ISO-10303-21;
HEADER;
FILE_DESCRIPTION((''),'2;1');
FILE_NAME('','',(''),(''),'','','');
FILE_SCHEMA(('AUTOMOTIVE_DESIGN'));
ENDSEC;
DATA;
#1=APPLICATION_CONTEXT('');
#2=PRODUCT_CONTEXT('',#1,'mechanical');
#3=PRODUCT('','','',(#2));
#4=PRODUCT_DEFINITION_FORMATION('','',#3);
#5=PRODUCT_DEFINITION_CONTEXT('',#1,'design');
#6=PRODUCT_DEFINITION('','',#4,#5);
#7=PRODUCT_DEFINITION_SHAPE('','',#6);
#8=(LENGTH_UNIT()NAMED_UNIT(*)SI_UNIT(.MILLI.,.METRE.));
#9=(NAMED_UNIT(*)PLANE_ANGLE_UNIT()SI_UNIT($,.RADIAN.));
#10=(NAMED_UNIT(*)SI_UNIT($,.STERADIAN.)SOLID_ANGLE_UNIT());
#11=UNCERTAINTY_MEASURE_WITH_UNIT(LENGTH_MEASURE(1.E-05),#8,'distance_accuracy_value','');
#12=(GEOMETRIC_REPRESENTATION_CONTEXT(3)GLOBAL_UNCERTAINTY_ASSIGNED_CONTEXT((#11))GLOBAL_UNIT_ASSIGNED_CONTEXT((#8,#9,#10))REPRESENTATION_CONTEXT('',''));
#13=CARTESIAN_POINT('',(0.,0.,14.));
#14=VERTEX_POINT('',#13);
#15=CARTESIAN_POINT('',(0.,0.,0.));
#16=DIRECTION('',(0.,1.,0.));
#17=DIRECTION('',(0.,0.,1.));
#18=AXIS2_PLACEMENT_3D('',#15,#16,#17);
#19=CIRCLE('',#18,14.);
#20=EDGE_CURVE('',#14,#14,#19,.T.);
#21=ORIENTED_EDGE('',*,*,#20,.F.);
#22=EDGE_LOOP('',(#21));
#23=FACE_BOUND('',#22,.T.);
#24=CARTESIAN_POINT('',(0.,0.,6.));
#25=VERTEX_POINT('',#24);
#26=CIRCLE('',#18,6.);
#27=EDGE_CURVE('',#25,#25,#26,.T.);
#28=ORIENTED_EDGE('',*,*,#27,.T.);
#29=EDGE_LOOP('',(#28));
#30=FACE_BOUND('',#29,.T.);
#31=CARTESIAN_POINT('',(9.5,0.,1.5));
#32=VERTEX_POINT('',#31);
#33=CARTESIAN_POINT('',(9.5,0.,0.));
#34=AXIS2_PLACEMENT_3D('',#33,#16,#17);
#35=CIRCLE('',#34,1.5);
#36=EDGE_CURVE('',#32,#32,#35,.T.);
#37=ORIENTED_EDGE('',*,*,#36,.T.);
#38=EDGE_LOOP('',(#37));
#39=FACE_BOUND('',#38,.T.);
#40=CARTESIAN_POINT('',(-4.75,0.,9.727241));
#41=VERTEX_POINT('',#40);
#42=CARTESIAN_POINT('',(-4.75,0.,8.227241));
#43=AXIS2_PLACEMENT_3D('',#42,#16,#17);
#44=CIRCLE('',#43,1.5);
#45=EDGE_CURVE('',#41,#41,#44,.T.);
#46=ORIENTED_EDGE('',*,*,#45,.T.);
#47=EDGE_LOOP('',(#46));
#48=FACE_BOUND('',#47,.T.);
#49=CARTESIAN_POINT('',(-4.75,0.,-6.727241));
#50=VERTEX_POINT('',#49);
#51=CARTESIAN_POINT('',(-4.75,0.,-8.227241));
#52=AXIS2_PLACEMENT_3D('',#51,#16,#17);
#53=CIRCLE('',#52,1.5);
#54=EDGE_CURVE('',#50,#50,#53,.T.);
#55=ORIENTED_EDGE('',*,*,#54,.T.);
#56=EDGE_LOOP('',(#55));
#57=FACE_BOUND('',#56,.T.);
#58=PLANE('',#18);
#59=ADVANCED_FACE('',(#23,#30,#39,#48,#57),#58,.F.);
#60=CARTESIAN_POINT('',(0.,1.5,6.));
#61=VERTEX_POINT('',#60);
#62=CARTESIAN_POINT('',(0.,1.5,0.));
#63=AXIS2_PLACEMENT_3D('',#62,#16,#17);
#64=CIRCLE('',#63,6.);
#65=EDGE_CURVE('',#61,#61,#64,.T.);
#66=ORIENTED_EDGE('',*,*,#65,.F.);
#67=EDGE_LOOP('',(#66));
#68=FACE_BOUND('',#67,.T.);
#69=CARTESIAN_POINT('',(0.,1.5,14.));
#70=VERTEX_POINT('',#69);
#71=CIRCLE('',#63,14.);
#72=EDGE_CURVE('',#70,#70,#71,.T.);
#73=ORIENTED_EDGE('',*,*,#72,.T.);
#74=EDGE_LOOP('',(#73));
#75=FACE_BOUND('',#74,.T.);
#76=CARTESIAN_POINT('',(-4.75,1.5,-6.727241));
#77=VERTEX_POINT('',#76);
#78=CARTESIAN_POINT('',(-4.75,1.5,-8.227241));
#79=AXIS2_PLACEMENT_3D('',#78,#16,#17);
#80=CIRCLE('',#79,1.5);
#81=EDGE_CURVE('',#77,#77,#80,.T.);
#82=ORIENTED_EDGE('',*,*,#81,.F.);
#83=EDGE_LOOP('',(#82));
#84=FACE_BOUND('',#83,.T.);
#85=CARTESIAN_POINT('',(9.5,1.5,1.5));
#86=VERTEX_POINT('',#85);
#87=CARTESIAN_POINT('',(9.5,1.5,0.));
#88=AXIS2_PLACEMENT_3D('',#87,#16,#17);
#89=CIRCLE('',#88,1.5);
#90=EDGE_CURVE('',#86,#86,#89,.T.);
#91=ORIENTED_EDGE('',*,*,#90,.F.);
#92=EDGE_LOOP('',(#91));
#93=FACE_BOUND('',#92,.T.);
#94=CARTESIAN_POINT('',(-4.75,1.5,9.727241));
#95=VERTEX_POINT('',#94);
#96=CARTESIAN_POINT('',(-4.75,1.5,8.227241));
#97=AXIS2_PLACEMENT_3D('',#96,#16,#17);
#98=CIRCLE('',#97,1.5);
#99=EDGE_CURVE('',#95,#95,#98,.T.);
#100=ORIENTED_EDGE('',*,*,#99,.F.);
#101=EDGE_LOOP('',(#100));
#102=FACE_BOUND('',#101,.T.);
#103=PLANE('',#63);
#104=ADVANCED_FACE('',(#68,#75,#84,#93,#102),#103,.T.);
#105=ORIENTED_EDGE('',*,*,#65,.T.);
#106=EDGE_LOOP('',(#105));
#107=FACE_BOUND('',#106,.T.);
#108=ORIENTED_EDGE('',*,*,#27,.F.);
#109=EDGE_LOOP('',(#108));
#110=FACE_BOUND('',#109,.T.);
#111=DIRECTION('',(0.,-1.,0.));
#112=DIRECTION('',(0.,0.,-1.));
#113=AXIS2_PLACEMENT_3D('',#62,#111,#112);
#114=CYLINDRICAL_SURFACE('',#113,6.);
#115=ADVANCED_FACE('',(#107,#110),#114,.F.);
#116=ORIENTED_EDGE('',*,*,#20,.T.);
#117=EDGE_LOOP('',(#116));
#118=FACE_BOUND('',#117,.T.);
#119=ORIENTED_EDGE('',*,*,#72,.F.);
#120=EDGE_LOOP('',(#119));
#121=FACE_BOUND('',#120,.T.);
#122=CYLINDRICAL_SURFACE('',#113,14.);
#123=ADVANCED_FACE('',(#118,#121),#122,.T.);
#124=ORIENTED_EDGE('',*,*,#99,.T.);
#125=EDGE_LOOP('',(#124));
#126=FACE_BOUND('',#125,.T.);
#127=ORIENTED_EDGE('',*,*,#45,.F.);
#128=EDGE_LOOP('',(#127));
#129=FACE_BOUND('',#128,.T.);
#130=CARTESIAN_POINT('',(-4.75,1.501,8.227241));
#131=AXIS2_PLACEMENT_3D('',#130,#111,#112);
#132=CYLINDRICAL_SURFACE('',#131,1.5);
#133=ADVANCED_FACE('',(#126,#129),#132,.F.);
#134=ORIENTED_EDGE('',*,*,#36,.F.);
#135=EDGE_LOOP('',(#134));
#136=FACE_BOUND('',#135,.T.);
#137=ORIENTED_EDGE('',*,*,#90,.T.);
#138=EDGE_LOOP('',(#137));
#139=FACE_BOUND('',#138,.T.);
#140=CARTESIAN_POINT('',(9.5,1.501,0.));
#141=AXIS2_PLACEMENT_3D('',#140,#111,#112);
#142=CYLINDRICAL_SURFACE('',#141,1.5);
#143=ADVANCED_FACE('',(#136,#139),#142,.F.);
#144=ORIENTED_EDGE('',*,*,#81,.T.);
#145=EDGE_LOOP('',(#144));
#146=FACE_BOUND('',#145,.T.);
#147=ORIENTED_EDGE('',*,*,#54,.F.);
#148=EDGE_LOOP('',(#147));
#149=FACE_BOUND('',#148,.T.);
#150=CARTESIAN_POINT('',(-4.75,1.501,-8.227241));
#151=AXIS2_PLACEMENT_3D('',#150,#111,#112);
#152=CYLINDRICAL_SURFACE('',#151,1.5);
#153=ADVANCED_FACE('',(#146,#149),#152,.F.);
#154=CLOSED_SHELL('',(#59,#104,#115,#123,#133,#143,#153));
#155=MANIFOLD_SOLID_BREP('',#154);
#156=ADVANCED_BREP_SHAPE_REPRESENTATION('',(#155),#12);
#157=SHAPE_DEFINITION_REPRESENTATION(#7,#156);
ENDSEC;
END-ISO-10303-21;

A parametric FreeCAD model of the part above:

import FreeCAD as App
import Part
import Sketcher
Q = App.Units.Quantity

doc = App.newDocument("Part")
body = doc.addObject("PartDesign::Body", "Body")

sketch1 = body.newObject("Sketcher::SketchObject", "Sketch")
sketch1.AttachmentSupport = (doc.getObject("XZ_Plane"), [""])
sketch1.MapMode = "FlatFace"
sketch1.addGeometry(Part.Circle(App.Vector(0, 0, 0), App.Vector(0, 0, 1), 14), False)
sketch1.addGeometry(Part.Circle(App.Vector(0, 0, 0), App.Vector(0, 0, 1), 6), False)
sketch1.addConstraint(Sketcher.Constraint("Coincident", 0, 3, -1, 1))
sketch1.addConstraint(Sketcher.Constraint("Coincident", 1, 3, -1, 1))
sketch1.addConstraint(Sketcher.Constraint("Diameter", 0, Q("28 mm")))
sketch1.addConstraint(Sketcher.Constraint("Diameter", 1, Q("12 mm")))
pad1 = body.newObject("PartDesign::Pad", "Pad")
pad1.Profile = sketch1
pad1.Length = 1.5
pad1.Reversed = True

sketch2 = body.newObject("Sketcher::SketchObject", "Sketch001")
sketch2.AttachmentSupport = (doc.getObject("XZ_Plane"), [""])
sketch2.MapMode = "FlatFace"
sketch2.addGeometry(Part.Circle(App.Vector(9.5, 0, 0), App.Vector(0, 0, 1), 1.5), False)
sketch2.addConstraint(Sketcher.Constraint("PointOnObject", 0, 3, -1))
sketch2.addConstraint(Sketcher.Constraint("Diameter", 0, Q("3 mm")))
sketch2.addConstraint(Sketcher.Constraint("DistanceX", -1, 1, 0, 3, Q("9.5 mm")))
pocket1 = body.newObject("PartDesign::Pocket", "Pocket")
pocket1.Profile = sketch2
pocket1.Type = "UpToFirst"

sketch3 = body.newObject("Sketcher::SketchObject", "Sketch002")
sketch3.AttachmentSupport = (doc.getObject("XZ_Plane"), [""])
sketch3.MapMode = "FlatFace"
sketch3.addGeometry(Part.Circle(App.Vector(-4.8, 8.2, 0), App.Vector(0, 0, 1), 1.5), False)
sketch3.addConstraint(Sketcher.Constraint("Diameter", 0, Q("3 mm")))
sketch3.addConstraint(Sketcher.Constraint("DistanceX", 0, 3, -1, 1, Q("4.75 mm")))
sketch3.addConstraint(Sketcher.Constraint("DistanceY", -1, 1, 0, 3, Q("8.227241 mm")))
pocket2 = body.newObject("PartDesign::Pocket", "Pocket001")
pocket2.Profile = sketch3
pocket2.Type = "UpToFirst"

sketch4 = body.newObject("Sketcher::SketchObject", "Sketch003")
sketch4.AttachmentSupport = (doc.getObject("XZ_Plane"), [""])
sketch4.MapMode = "FlatFace"
sketch4.addGeometry(Part.Circle(App.Vector(-4.8, -8.2, 0), App.Vector(0, 0, 1), 1.5), False)
sketch4.addConstraint(Sketcher.Constraint("Diameter", 0, Q("3 mm")))
sketch4.addConstraint(Sketcher.Constraint("DistanceX", 0, 3, -1, 1, Q("4.75 mm")))
sketch4.addConstraint(Sketcher.Constraint("DistanceY", 0, 3, -1, 1, Q("8.227241 mm")))
pocket3 = body.newObject("PartDesign::Pocket", "Pocket002")
pocket3.Profile = sketch4
pocket3.Type = "UpToFirst"

doc.recompute()
